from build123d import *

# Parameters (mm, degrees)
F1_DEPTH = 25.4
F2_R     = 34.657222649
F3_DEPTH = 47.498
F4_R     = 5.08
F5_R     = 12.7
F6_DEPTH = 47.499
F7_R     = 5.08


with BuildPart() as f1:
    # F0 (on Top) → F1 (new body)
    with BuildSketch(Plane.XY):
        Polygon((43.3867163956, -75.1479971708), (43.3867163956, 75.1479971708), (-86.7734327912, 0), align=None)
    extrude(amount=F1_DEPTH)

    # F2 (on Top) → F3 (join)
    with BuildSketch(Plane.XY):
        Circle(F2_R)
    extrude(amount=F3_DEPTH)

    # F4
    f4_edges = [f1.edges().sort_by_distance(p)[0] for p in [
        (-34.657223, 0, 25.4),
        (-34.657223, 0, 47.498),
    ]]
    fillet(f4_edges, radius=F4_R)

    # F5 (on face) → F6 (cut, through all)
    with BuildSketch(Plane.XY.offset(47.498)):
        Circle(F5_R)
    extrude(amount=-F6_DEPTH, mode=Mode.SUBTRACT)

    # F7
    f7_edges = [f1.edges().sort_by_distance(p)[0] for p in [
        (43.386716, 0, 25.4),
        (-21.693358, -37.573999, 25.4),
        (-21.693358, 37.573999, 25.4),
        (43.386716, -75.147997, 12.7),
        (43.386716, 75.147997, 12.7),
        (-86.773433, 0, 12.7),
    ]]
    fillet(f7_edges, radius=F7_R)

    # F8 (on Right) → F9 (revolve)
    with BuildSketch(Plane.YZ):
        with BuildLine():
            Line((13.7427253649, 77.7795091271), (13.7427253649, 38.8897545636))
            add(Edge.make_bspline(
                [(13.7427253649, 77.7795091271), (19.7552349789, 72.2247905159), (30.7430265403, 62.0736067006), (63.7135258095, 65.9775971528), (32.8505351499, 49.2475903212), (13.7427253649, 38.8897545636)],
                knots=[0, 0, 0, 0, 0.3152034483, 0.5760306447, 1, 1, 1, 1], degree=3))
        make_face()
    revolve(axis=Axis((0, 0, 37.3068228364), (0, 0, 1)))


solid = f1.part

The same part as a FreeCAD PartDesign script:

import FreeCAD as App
import Part
import Sketcher

V = App.Vector
Q = App.Units.Quantity


def edges_at(feature, points):
    """Names of the edges that pass closest to the given points."""
    edges = feature.Shape.Edges
    near = lambda p: min(range(len(edges)), key=lambda i: edges[i].distToShape(Part.Vertex(*p))[0])
    return sorted({f"Edge{near(p) + 1}" for p in points})


def add_polygon(sketch, points):
    """Adds a closed chain of lines whose ends are joined by coincident constraints."""
    first, n = sketch.GeometryCount, len(points)
    for a, b in zip(points, points[1:] + points[:1]):
        sketch.addGeometry(Part.LineSegment(App.Vector(*a, 0), App.Vector(*b, 0)), False)
    for i in range(n):
        sketch.addConstraint(Sketcher.Constraint("Coincident", first + i, 2, first + (i + 1) % n, 1))

doc = App.newDocument("Part")
params = doc.addObject("Spreadsheet::Sheet", "Params")
for row, (alias, value) in enumerate([
    ("pad1_length", "1 in"),
    ("pad2_length", "1.87 in"),
    ("fillet_radius", "0.2 in"),
    ("sketch3_diameter", "1 in"),
    ("fillet2_radius", "0.2 in"),
    ("revolution_angle", "360 deg"),
], start=1):
    params.set(f"A{row}", alias)
    params.set(f"B{row}", "=" + value)
    params.setAlias(f"B{row}", alias)

body = doc.addObject("PartDesign::Body", "Body")

# Sketch on XY plane
sketch1 = doc.addObject("Sketcher::SketchObject", "Sketch")
body.addObject(sketch1)
sketch1.AttachmentSupport = (doc.XY_Plane, [""])
sketch1.MapMode = "FlatFace"
add_polygon(sketch1, [(43.386716, -75.147997), (43.386716, 75.147997), (-86.773433, 0)])  # lines 0-2
sketch1.addConstraint([
    Sketcher.Constraint("Vertical", 0),
    Sketcher.Constraint("PointOnObject", 1, 2, -1),
    Sketcher.Constraint("Equal", 1, 2),
    Sketcher.Constraint("Angle", 1, Q("-150 deg")),
    Sketcher.Constraint("DistanceY", 0, 1, 0, 2, Q("150.295994 mm")),
    Sketcher.Constraint("DistanceX", -1, 1, 0, 2, Q("43.386716 mm")),
])
pad1 = doc.addObject("PartDesign::Pad", "Pad")
body.addObject(pad1)
pad1.Profile = sketch1
pad1.setExpression("Length", "Params.pad1_length")

# Sketch on XY plane
sketch2 = doc.addObject("Sketcher::SketchObject", "Sketch001")
body.addObject(sketch2)
sketch2.AttachmentSupport = (doc.XY_Plane, [""])
sketch2.MapMode = "FlatFace"
sketch2.addGeometry(Part.Circle(V(0, 0, 0), V(0, 0, 1), 34.657223), False)
sketch2.addConstraint([
    Sketcher.Constraint("Coincident", 0, 3, -1, 1),
    Sketcher.Constraint("Diameter", 0, Q("69.314445 mm")),
])
pad2 = doc.addObject("PartDesign::Pad", "Pad001")
body.addObject(pad2)
pad2.Profile = sketch2
pad2.setExpression("Length", "Params.pad2_length")
doc.recompute()

fillet = doc.addObject("PartDesign::Fillet", "Fillet")
body.addObject(fillet)
fillet.Base = (pad2, edges_at(pad2, [(-34.657, 0, 25.4), (-34.657, 0, 47.498)]))
fillet.setExpression("Radius", "Params.fillet_radius")

# Sketch on XY plane
sketch3 = doc.addObject("Sketcher::SketchObject", "Sketch002")
body.addObject(sketch3)
sketch3.AttachmentSupport = (doc.XY_Plane, [""])
sketch3.MapMode = "FlatFace"
sketch3.AttachmentOffset = App.Placement(V(0, 0, 1.87 * 25.4), App.Rotation())
sketch3.addGeometry(Part.Circle(V(0, 0, 0), V(0, 0, 1), 12.7), False)
sketch3.addConstraint([
    Sketcher.Constraint("Coincident", 0, 3, -1, 1),
    Sketcher.Constraint("Diameter", 0, Q("1 in")),
])
sketch3.setExpression("Constraints[1]", "Params.sketch3_diameter")
pocket1 = doc.addObject("PartDesign::Pocket", "Pocket")
body.addObject(pocket1)
pocket1.Profile = sketch3
pocket1.Type = "ThroughAll"
doc.recompute()

fillet2 = doc.addObject("PartDesign::Fillet", "Fillet001")
body.addObject(fillet2)
fillet2.Base = (pocket1, edges_at(pocket1, [
    (43.387, 0, 25.4),
    (-21.693, -37.574, 25.4),
    (-21.693, 37.574, 25.4),
    (43.387, -75.148, 12.7),
    (43.387, 75.148, 12.7),
    (-86.773, 0, 12.7),
]))
fillet2.setExpression("Radius", "Params.fillet2_radius")

# Sketch on YZ plane
sketch4 = doc.addObject("Sketcher::SketchObject", "Sketch003")
body.addObject(sketch4)
sketch4.AttachmentSupport = (doc.YZ_Plane, [""])
sketch4.MapMode = "FlatFace"
sketch4.addGeometry([
    Part.LineSegment(V(13.742725, 77.779509, 0), V(13.742725, 38.889755, 0)),
    Part.BSplineCurve([V(13.742725, 77.779509, 0), V(19.755235, 72.224791, 0), V(30.743027, 62.073607, 0), V(63.713526, 65.977597, 0), V(32.850535, 49.24759, 0), V(13.742725, 38.889755, 0)], [4, 1, 1, 4], [0, 0.315203448, 0.576030645, 1], False, 3, [1, 1, 1, 1, 1, 1], False),
], False)
sketch4.addConstraint([
    Sketcher.Constraint("Block", 1),
    Sketcher.Constraint("Coincident", 0, 1, 1, 1),
    Sketcher.Constraint("Coincident", 1, 2, 0, 2),
])
revolution = doc.addObject("PartDesign::Revolution", "Revolution")
body.addObject(revolution)
revolution.Profile = sketch4
revolution.ReferenceAxis = (sketch4, ["V_Axis"])
revolution.setExpression("Angle", "Params.revolution_angle")

doc.recompute()
